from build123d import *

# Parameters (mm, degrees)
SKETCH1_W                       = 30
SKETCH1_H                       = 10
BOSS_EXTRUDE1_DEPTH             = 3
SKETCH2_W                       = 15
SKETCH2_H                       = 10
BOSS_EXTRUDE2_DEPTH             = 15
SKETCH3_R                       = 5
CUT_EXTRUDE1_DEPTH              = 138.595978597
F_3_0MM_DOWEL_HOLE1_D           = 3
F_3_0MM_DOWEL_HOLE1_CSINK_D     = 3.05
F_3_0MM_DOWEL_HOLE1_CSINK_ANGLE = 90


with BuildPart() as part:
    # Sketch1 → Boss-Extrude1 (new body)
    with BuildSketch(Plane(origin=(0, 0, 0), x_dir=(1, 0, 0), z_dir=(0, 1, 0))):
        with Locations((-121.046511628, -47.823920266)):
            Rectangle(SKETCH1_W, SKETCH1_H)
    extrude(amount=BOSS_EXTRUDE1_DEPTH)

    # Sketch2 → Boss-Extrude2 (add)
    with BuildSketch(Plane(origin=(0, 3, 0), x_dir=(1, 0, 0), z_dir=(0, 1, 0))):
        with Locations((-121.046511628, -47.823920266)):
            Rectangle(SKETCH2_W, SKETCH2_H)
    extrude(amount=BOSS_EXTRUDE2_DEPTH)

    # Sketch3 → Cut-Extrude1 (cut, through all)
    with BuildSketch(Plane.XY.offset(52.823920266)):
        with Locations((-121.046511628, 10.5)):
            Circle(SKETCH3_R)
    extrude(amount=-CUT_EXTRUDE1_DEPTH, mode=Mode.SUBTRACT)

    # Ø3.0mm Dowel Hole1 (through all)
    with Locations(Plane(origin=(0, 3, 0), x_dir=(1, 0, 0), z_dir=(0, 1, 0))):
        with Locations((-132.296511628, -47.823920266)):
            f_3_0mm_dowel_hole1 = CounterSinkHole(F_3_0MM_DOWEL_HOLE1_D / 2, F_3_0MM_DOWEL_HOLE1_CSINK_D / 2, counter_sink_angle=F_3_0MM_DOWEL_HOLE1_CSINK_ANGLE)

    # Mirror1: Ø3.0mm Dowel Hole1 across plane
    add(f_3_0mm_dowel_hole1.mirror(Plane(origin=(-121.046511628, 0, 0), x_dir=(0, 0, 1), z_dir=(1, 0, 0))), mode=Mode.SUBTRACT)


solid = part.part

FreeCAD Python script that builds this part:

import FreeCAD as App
import Part
import Sketcher

doc = App.newDocument("Part")
body = doc.addObject("PartDesign::Body", "Body")

# Sketch on XZ plane
sketch1 = body.newObject("Sketcher::SketchObject", "Sketch")
sketch1.AttachmentSupport = (doc.getObject("XZ_Plane"), [""])
sketch1.MapMode = "FlatFace"
sketch1.addGeometry([
    Part.LineSegment(App.Vector(-136, 43, 0), App.Vector(-136, 53, 0)),
    Part.LineSegment(App.Vector(-136, 53, 0), App.Vector(-106, 53, 0)),
    Part.LineSegment(App.Vector(-106, 53, 0), App.Vector(-106, 43, 0)),
    Part.LineSegment(App.Vector(-106, 43, 0), App.Vector(-136, 43, 0)),
], False)
sketch1.addConstraint([
    Sketcher.Constraint("Coincident", 0, 2, 1, 1),
    Sketcher.Constraint("Coincident", 1, 2, 2, 1),
    Sketcher.Constraint("Coincident", 2, 2, 3, 1),
    Sketcher.Constraint("Coincident", 3, 2, 0, 1),
    Sketcher.Constraint("Vertical", 0),
    Sketcher.Constraint("Horizontal", 1),
    Sketcher.Constraint("Vertical", 2),
    Sketcher.Constraint("Horizontal", 3),
    Sketcher.Constraint("DistanceX", 1, 1, 1, 2, 30.0),
    Sketcher.Constraint("DistanceY", 0, 1, 0, 2, 10.0),
    Sketcher.Constraint("DistanceX", 0, 2, -1, 1, 136.046512),
    Sketcher.Constraint("DistanceY", -1, 1, 0, 2, 52.82392),
])
pad1 = body.newObject("PartDesign::Pad", "Pad")
pad1.Profile = sketch1
pad1.Length = 3
pad1.Reversed = True

# Sketch on XZ plane
sketch2 = body.newObject("Sketcher::SketchObject", "Sketch001")
sketch2.AttachmentSupport = (doc.getObject("XZ_Plane"), [""])
sketch2.MapMode = "FlatFace"
sketch2.AttachmentOffset = App.Placement(App.Vector(0, 0, -3), App.Rotation())
sketch2.addGeometry([
    Part.LineSegment(App.Vector(-129, 43, 0), App.Vector(-129, 53, 0)),
    Part.LineSegment(App.Vector(-129, 53, 0), App.Vector(-114, 53, 0)),
    Part.LineSegment(App.Vector(-114, 53, 0), App.Vector(-114, 43, 0)),
    Part.LineSegment(App.Vector(-114, 43, 0), App.Vector(-129, 43, 0)),
], False)
sketch2.addConstraint([
    Sketcher.Constraint("Coincident", 0, 2, 1, 1),
    Sketcher.Constraint("Coincident", 1, 2, 2, 1),
    Sketcher.Constraint("Coincident", 2, 2, 3, 1),
    Sketcher.Constraint("Coincident", 3, 2, 0, 1),
    Sketcher.Constraint("Vertical", 0),
    Sketcher.Constraint("Horizontal", 1),
    Sketcher.Constraint("Vertical", 2),
    Sketcher.Constraint("Horizontal", 3),
    Sketcher.Constraint("DistanceX", 1, 1, 1, 2, 15.0),
    Sketcher.Constraint("DistanceY", 0, 1, 0, 2, 10.0),
    Sketcher.Constraint("DistanceX", 0, 2, -1, 1, 128.546512),
    Sketcher.Constraint("DistanceY", -1, 1, 0, 2, 52.82392),
])
pad2 = body.newObject("PartDesign::Pad", "Pad001")
pad2.Profile = sketch2
pad2.Length = 15
pad2.Reversed = True

# Sketch on XY plane
sketch3 = body.newObject("Sketcher::SketchObject", "Sketch002")
sketch3.AttachmentSupport = (doc.getObject("XY_Plane"), [""])
sketch3.MapMode = "FlatFace"
sketch3.AttachmentOffset = App.Placement(App.Vector(0, 0, 52.82392), App.Rotation())
sketch3.addGeometry(Part.Circle(App.Vector(-121, 10, 0), App.Vector(0, 0, 1), 5), False)
sketch3.addConstraint([
    Sketcher.Constraint("Diameter", 0, 10.0),
    Sketcher.Constraint("DistanceY", -1, 1, 0, 3, 10.5),
    Sketcher.Constraint("DistanceX", 0, 3, -1, 1, 121.046512),
])
pocket1 = body.newObject("PartDesign::Pocket", "Pocket")
pocket1.Profile = sketch3
pocket1.Type = "ThroughAll"

# Sketch on XZ plane
sketch4 = body.newObject("Sketcher::SketchObject", "Sketch003")
sketch4.AttachmentSupport = (doc.getObject("XZ_Plane"), [""])
sketch4.MapMode = "FlatFace"
sketch4.AttachmentOffset = App.Placement(App.Vector(0, 0, -3), App.Rotation())
sketch4.addGeometry(Part.Circle(App.Vector(-132.3, 47.8, 0), App.Vector(0, 0, 1), 1.5), False)
sketch4.addConstraint([
    Sketcher.Constraint("Diameter", 0, 3.0),
    Sketcher.Constraint("DistanceX", 0, 3, -1, 1, 132.296512),
    Sketcher.Constraint("DistanceY", -1, 1, 0, 3, 47.82392),
])
doc.recompute()
hole = body.newObject("PartDesign::Hole", "Hole")
hole.Profile = sketch4
hole.ThreadType = "None"
hole.Diameter = 3
hole.DepthType = "ThroughAll"
hole.HoleCutType = "Countersink"
hole.HoleCutDiameter = 3.05
hole.HoleCutCountersinkAngle = 90
hole.Reversed = True
doc.recompute()

datumplane = body.newObject("PartDesign::Plane", "DatumPlane")
datumplane.AttachmentSupport = (doc.getObject("YZ_Plane"), [""])
datumplane.MapMode = "FlatFace"
datumplane.AttachmentOffset = App.Placement(App.Vector(0, 0, -121.046512), App.Rotation())
mirrored = body.newObject("PartDesign::Mirrored", "Mirrored")
mirrored.Originals = [hole]
mirrored.MirrorPlane = (datumplane, [""])
body.Tip = mirrored

doc.recompute()
